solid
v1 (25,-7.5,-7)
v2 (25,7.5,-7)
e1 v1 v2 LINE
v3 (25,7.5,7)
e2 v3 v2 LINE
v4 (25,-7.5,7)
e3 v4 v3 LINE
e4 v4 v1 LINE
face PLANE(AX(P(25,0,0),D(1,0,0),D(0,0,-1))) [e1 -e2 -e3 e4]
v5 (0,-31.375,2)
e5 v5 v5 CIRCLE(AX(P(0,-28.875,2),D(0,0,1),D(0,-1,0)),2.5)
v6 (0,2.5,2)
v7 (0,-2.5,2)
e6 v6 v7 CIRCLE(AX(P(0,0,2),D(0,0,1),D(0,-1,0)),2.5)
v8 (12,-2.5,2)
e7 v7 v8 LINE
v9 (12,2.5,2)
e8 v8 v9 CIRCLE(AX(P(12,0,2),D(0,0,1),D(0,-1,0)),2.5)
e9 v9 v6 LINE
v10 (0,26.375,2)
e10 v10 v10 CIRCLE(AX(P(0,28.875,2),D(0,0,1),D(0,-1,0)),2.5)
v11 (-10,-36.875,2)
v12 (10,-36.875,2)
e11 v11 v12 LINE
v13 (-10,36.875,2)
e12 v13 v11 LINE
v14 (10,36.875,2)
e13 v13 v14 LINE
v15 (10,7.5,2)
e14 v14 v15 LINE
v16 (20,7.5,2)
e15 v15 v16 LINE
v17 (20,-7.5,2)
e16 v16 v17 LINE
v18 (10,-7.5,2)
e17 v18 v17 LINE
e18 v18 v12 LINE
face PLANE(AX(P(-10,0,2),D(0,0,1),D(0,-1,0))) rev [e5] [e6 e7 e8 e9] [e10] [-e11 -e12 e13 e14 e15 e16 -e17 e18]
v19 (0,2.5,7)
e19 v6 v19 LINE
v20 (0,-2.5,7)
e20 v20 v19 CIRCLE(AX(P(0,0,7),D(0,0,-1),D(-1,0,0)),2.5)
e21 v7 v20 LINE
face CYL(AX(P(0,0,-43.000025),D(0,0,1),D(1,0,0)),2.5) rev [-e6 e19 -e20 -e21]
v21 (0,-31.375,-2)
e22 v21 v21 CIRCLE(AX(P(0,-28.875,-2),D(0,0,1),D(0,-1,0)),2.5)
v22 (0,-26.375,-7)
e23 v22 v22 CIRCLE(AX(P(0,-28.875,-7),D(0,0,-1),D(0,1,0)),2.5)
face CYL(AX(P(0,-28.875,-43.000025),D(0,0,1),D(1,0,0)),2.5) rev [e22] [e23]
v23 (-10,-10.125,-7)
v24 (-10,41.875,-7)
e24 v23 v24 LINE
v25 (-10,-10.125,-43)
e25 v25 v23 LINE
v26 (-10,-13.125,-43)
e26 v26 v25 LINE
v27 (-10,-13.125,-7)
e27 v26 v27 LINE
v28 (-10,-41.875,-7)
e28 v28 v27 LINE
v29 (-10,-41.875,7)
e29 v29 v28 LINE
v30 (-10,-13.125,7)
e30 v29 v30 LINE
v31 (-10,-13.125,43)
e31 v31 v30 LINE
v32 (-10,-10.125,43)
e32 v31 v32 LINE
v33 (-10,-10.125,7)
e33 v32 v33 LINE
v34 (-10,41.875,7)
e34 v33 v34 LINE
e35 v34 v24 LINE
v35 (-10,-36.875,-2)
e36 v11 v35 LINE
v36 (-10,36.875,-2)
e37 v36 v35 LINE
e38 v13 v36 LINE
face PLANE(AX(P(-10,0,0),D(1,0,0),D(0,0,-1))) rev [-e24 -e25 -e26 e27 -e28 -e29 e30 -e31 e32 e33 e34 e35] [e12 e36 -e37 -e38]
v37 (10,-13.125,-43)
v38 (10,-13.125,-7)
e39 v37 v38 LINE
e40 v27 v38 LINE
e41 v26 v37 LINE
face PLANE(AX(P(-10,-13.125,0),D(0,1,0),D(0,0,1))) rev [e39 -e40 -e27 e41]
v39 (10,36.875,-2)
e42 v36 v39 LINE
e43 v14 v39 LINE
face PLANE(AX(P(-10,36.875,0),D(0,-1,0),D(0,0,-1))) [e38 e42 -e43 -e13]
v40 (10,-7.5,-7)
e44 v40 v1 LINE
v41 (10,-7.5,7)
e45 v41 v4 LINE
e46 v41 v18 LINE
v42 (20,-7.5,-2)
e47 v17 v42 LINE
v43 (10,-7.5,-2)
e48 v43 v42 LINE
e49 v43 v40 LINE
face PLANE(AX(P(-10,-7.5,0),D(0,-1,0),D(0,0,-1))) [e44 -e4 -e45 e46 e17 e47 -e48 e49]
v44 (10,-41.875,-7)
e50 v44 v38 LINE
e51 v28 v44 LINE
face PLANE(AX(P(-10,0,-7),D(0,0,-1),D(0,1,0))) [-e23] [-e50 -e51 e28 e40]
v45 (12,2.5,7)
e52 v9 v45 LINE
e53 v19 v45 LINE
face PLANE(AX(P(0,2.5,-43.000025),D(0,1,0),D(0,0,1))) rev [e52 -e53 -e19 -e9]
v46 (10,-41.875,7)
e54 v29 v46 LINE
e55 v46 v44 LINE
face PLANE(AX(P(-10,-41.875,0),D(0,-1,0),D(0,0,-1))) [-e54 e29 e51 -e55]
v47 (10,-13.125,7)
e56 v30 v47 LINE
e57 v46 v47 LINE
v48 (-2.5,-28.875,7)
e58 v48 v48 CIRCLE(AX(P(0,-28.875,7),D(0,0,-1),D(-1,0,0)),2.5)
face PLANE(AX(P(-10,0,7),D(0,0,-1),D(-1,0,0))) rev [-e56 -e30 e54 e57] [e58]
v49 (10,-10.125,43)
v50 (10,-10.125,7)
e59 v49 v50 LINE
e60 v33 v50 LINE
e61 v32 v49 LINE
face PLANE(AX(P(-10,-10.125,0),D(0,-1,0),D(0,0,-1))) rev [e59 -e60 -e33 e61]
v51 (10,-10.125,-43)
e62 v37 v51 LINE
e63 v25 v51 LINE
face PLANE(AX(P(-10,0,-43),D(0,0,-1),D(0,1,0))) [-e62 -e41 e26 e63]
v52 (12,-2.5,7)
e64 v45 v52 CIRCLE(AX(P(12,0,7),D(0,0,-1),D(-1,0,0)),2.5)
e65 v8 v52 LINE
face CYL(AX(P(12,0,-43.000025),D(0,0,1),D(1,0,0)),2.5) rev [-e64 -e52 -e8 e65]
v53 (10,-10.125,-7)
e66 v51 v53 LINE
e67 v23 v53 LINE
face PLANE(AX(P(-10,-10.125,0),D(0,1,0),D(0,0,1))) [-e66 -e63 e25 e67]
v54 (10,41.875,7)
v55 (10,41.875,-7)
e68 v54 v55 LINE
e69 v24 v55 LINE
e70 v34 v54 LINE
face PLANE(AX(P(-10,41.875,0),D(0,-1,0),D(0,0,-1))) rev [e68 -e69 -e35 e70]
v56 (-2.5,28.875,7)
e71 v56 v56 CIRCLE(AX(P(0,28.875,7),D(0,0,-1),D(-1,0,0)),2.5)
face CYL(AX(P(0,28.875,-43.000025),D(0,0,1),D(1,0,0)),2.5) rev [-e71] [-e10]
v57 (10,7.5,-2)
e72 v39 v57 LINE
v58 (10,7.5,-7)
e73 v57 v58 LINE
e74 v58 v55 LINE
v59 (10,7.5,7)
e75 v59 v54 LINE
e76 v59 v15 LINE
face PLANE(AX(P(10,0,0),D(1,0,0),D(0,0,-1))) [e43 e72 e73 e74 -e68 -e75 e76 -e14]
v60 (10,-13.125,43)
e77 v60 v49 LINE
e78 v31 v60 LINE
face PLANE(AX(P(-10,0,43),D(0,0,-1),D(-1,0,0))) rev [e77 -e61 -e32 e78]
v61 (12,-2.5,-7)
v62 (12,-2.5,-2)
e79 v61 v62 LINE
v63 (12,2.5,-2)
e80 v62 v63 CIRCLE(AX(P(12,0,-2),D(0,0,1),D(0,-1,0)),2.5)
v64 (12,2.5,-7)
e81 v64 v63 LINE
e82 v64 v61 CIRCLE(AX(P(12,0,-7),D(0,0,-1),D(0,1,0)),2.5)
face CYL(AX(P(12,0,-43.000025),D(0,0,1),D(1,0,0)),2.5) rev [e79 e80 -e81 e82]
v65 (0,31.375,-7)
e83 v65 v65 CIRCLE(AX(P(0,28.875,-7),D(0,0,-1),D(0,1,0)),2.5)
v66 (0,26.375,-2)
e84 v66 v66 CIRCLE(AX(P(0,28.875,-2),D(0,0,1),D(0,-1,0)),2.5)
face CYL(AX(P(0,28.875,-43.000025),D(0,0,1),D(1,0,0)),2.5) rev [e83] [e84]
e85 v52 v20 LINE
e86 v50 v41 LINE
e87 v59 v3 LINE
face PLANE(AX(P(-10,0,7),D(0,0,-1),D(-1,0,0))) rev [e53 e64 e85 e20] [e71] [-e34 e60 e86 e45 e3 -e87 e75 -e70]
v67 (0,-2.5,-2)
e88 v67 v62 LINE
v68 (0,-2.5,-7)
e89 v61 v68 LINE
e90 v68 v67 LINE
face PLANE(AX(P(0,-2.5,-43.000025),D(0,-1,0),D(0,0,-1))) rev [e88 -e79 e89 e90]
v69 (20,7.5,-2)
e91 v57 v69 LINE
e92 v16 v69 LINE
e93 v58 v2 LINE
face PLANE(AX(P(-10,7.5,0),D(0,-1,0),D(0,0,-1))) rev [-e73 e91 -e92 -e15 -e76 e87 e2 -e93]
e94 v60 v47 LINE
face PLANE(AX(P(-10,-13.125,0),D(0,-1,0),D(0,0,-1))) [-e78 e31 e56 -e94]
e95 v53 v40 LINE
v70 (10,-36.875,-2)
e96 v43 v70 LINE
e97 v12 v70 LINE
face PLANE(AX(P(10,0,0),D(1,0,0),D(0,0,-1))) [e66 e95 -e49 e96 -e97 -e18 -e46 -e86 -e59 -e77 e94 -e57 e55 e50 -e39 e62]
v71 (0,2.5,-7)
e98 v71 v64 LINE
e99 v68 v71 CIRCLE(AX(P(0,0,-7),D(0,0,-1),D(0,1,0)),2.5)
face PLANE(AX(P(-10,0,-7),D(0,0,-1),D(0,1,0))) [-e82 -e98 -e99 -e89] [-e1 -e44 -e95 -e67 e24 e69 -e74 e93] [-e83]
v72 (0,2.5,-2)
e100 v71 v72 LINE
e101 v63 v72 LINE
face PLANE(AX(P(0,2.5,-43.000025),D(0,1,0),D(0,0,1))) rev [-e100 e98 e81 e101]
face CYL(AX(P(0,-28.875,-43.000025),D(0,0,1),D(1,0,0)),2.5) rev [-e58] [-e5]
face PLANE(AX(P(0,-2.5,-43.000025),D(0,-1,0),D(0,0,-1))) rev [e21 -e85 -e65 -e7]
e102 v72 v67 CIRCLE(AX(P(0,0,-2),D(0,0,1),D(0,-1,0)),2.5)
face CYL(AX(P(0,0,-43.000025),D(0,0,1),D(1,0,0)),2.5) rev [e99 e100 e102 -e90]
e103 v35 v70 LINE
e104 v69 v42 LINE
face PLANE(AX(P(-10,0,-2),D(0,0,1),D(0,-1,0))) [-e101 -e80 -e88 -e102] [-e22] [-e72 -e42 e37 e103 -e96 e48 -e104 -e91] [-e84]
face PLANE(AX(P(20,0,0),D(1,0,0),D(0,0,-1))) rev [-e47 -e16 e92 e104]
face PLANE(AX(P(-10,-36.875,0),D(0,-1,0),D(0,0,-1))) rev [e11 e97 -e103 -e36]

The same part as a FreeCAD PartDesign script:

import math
import FreeCAD as App
import Part
import Sketcher
Q = App.Units.Quantity


def add_polygon(sketch, points):
    """Adds a closed chain of lines whose ends are joined by coincident constraints."""
    first, n = sketch.GeometryCount, len(points)
    for a, b in zip(points, points[1:] + points[:1]):
        sketch.addGeometry(Part.LineSegment(App.Vector(*a, 0), App.Vector(*b, 0)), False)
    for i in range(n):
        sketch.addConstraint(Sketcher.Constraint("Coincident", first + i, 2, first + (i + 1) % n, 1))

doc = App.newDocument("Part")
params = doc.addObject("Spreadsheet::Sheet", "Params")
for row, (alias, value) in enumerate([
    ("sketch1_height", "5 mm"),
    ("sketch1_height2", "4 mm"),
    ("pad1_length", "10 mm"),
    ("pad1_length2", "10 mm"),
    ("sketch2_width", "15 mm"),
    ("sketch2_height", "5 mm"),
    ("pad2_length", "25 mm"),
    ("pad2_length2", "10 mm"),
    ("sketch3_width", "15 mm"),
    ("sketch3_height", "4 mm"),
    ("pad3_length", "5 mm"),
    ("sketch4_height", "5 mm"),
    ("sketch4_height2", "14 mm"),
    ("pad4_length", "10 mm"),
    ("pad4_length2", "10 mm"),
    ("sketch5_width", "3 mm"),
    ("sketch5_height", "36 mm"),
    ("pad5_length", "10 mm"),
    ("pad5_length2", "10 mm"),
    ("sketch6_diameter", "5 mm"),
    ("sketch6_width", "12 mm"),
], start=1):
    params.set(f"A{row}", alias)
    params.set(f"B{row}", "=" + value)
    params.setAlias(f"B{row}", alias)

body = doc.addObject("PartDesign::Body", "Body")

# Sketch on YZ plane
sketch1 = body.newObject("Sketcher::SketchObject", "Sketch")
sketch1.AttachmentSupport = (doc.getObject("YZ_Plane"), [""])
sketch1.MapMode = "FlatFace"
add_polygon(sketch1, [(41.9, 7), (7.5, 7), (7.5, 2), (36.9, 2), (36.9, -2), (7.5, -2), (7.5, -7), (41.9, -7)])  # lines 0-7
sketch1.addConstraint(Sketcher.Constraint("Horizontal", 0))
sketch1.addConstraint(Sketcher.Constraint("Vertical", 1))
sketch1.addConstraint(Sketcher.Constraint("Horizontal", 2))
sketch1.addConstraint(Sketcher.Constraint("Vertical", 3))
sketch1.addConstraint(Sketcher.Constraint("Horizontal", 4))
sketch1.addConstraint(Sketcher.Constraint("Vertical", 5))
sketch1.addConstraint(Sketcher.Constraint("Horizontal", 6))
sketch1.addConstraint(Sketcher.Constraint("Vertical", 7))
sketch1.addConstraint(Sketcher.Constraint("Symmetric", 1, 2, 4, 2, -1))
sketch1.addConstraint(Sketcher.Constraint("Equal", 1, 5))
sketch1.addConstraint(Sketcher.Constraint("DistanceY", 1, 2, 1, 1, Q("5 mm")))
sketch1.addConstraint(Sketcher.Constraint("DistanceY", 3, 2, 3, 1, Q("4 mm")))
sketch1.addConstraint(Sketcher.Constraint("DistanceX", 3, 2, 6, 2, Q("5 mm")))
sketch1.addConstraint(Sketcher.Constraint("DistanceX", -1, 1, 0, 2, Q("7.5 mm")))
sketch1.addConstraint(Sketcher.Constraint("DistanceX", 0, 2, 0, 1, Q("34.375 mm")))
sketch1.setExpression("Constraints[18]", "Params.sketch1_height")
sketch1.setExpression("Constraints[19]", "Params.sketch1_height2")
pad1 = body.newObject("PartDesign::Pad", "Pad")
pad1.Profile = sketch1
pad1.Type = "TwoLengths"
pad1.setExpression("Length", "Params.pad1_length")
pad1.setExpression("Length2", "Params.pad1_length2")

# Sketch on YZ plane
sketch2 = body.newObject("Sketcher::SketchObject", "Sketch001")
sketch2.AttachmentSupport = (doc.getObject("YZ_Plane"), [""])
sketch2.MapMode = "FlatFace"
add_polygon(sketch2, [(8, 7), (-8, 7), (-8, 2), (8, 2)])  # lines 0-3
add_polygon(sketch2, [(8, -2), (-8, -2), (-8, -7), (8, -7)])  # lines 4-7
sketch2.addConstraint(Sketcher.Constraint("Horizontal", 0))
sketch2.addConstraint(Sketcher.Constraint("Vertical", 1))
sketch2.addConstraint(Sketcher.Constraint("Horizontal", 2))
sketch2.addConstraint(Sketcher.Constraint("Vertical", 3))
sketch2.addConstraint(Sketcher.Constraint("Horizontal", 4))
sketch2.addConstraint(Sketcher.Constraint("Vertical", 5))
sketch2.addConstraint(Sketcher.Constraint("Horizontal", 6))
sketch2.addConstraint(Sketcher.Constraint("Vertical", 7))
sketch2.addConstraint(Sketcher.Constraint("Symmetric", 2, 2, 4, 2, -1, 1))
sketch2.addConstraint(Sketcher.Constraint("Symmetric", 0, 2, 6, 2, -1, 1))
sketch2.addConstraint(Sketcher.Constraint("Vertical", 1, 2, 4, 2))
sketch2.addConstraint(Sketcher.Constraint("DistanceX", 0, 2, 0, 1, Q("15 mm")))
sketch2.addConstraint(Sketcher.Constraint("DistanceY", 1, 2, 1, 1, Q("5 mm")))
sketch2.addConstraint(Sketcher.Constraint("DistanceY", -1, 1, 0, 2, Q("7 mm")))
sketch2.setExpression("Constraints[19]", "Params.sketch2_width")
sketch2.setExpression("Constraints[20]", "Params.sketch2_height")
pad2 = body.newObject("PartDesign::Pad", "Pad001")
pad2.Profile = sketch2
pad2.Type = "TwoLengths"
pad2.setExpression("Length", "Params.pad2_length")
pad2.setExpression("Length2", "Params.pad2_length2")

# Sketch on YZ plane
sketch3 = body.newObject("Sketcher::SketchObject", "Sketch002")
sketch3.AttachmentSupport = (doc.getObject("YZ_Plane"), [""])
sketch3.MapMode = "FlatFace"
sketch3.AttachmentOffset = App.Placement(App.Vector(0, 0, 20), App.Rotation())
add_polygon(sketch3, [(7.5, 2), (-7.5, 2), (-7.5, -2), (7.5, -2)])  # lines 0-3
sketch3.addConstraint(Sketcher.Constraint("Horizontal", 0))
sketch3.addConstraint(Sketcher.Constraint("Vertical", 1))
sketch3.addConstraint(Sketcher.Constraint("Horizontal", 2))
sketch3.addConstraint(Sketcher.Constraint("Vertical", 3))
sketch3.addConstraint(Sketcher.Constraint("Symmetric", 0, 2, 2, 2, -1, 1))
sketch3.addConstraint(Sketcher.Constraint("DistanceX", 0, 2, 0, 1, Q("15 mm")))
sketch3.addConstraint(Sketcher.Constraint("DistanceY", 1, 2, 1, 1, Q("4 mm")))
sketch3.setExpression("Constraints[9]", "Params.sketch3_width")
sketch3.setExpression("Constraints[10]", "Params.sketch3_height")
pad3 = body.newObject("PartDesign::Pad", "Pad002")
pad3.Profile = sketch3
pad3.setExpression("Length", "Params.pad3_length")

# Sketch on YZ plane
sketch4 = body.newObject("Sketcher::SketchObject", "Sketch003")
sketch4.AttachmentSupport = (doc.getObject("YZ_Plane"), [""])
sketch4.MapMode = "FlatFace"
add_polygon(sketch4, [(-7.5, 2), (-7.5, 7), (-41.9, 7), (-41.9, -7), (-7.5, -7), (-7.5, -2), (-36.9, -2), (-36.9, 2)])  # lines 0-7
sketch4.addConstraint(Sketcher.Constraint("Vertical", 0))
sketch4.addConstraint(Sketcher.Constraint("Horizontal", 1))
sketch4.addConstraint(Sketcher.Constraint("Vertical", 2))
sketch4.addConstraint(Sketcher.Constraint("Horizontal", 3))
sketch4.addConstraint(Sketcher.Constraint("Vertical", 4))
sketch4.addConstraint(Sketcher.Constraint("Horizontal", 5))
sketch4.addConstraint(Sketcher.Constraint("Vertical", 6))
sketch4.addConstraint(Sketcher.Constraint("Horizontal", 7))
sketch4.addConstraint(Sketcher.Constraint("Symmetric", 0, 2, 3, 2, -1))
sketch4.addConstraint(Sketcher.Constraint("Equal", 0, 4))
sketch4.addConstraint(Sketcher.Constraint("DistanceY", 0, 1, 0, 2, Q("5 mm")))
sketch4.addConstraint(Sketcher.Constraint("DistanceY", 2, 2, 2, 1, Q("14 mm")))
sketch4.addConstraint(Sketcher.Constraint("DistanceX", 2, 2, 5, 2, Q("5 mm")))
sketch4.addConstraint(Sketcher.Constraint("DistanceX", 0, 2, -1, 1, Q("7.5 mm")))
sketch4.addConstraint(Sketcher.Constraint("DistanceX", 1, 2, 1, 1, Q("34.375 mm")))
sketch4.setExpression("Constraints[18]", "Params.sketch4_height")
sketch4.setExpression("Constraints[19]", "Params.sketch4_height2")
pad4 = body.newObject("PartDesign::Pad", "Pad003")
pad4.Profile = sketch4
pad4.Type = "TwoLengths"
pad4.setExpression("Length", "Params.pad4_length")
pad4.setExpression("Length2", "Params.pad4_length2")

# Sketch on YZ plane
sketch5 = body.newObject("Sketcher::SketchObject", "Sketch004")
sketch5.AttachmentSupport = (doc.getObject("YZ_Plane"), [""])
sketch5.MapMode = "FlatFace"
add_polygon(sketch5, [(-10.1, -7), (-13.1, -7), (-13.1, -43), (-10.1, -43)])  # lines 0-3
add_polygon(sketch5, [(-10.1, 43), (-13.1, 43), (-13.1, 7), (-10.1, 7)])  # lines 4-7
sketch5.addConstraint(Sketcher.Constraint("Horizontal", 0))
sketch5.addConstraint(Sketcher.Constraint("Vertical", 1))
sketch5.addConstraint(Sketcher.Constraint("Horizontal", 2))
sketch5.addConstraint(Sketcher.Constraint("Vertical", 3))
sketch5.addConstraint(Sketcher.Constraint("Horizontal", 4))
sketch5.addConstraint(Sketcher.Constraint("Vertical", 5))
sketch5.addConstraint(Sketcher.Constraint("Horizontal", 6))
sketch5.addConstraint(Sketcher.Constraint("Vertical", 7))
sketch5.addConstraint(Sketcher.Constraint("Symmetric", 1, 2, 4, 2, -1))
sketch5.addConstraint(Sketcher.Constraint("Symmetric", 3, 2, 6, 2, -1))
sketch5.addConstraint(Sketcher.Constraint("DistanceX", 0, 2, 0, 1, Q("3 mm")))
sketch5.addConstraint(Sketcher.Constraint("DistanceY", 1, 2, 1, 1, Q("36 mm")))
sketch5.addConstraint(Sketcher.Constraint("DistanceY", 0, 2, -1, 1, Q("7 mm")))
sketch5.addConstraint(Sketcher.Constraint("DistanceX", 0, 2, -1, 1, Q("13.125 mm")))
sketch5.setExpression("Constraints[18]", "Params.sketch5_width")
sketch5.setExpression("Constraints[19]", "Params.sketch5_height")
pad5 = body.newObject("PartDesign::Pad", "Pad004")
pad5.Profile = sketch5
pad5.Type = "TwoLengths"
pad5.setExpression("Length", "Params.pad5_length")
pad5.setExpression("Length2", "Params.pad5_length2")

# Sketch on XY plane
sketch6 = body.newObject("Sketcher::SketchObject", "Sketch005")
sketch6.AttachmentSupport = (doc.getObject("XY_Plane"), [""])
sketch6.MapMode = "FlatFace"
sketch6.AttachmentOffset = App.Placement(App.Vector(0, 0, 7), App.Rotation())
sketch6.addGeometry(Part.Circle(App.Vector(0, 28.9, 0), App.Vector(0, 0, 1), 2.5), False)
sketch6.addGeometry(Part.Circle(App.Vector(0, -28.9, 0), App.Vector(0, 0, 1), 2.5), False)
sketch6.addGeometry(Part.LineSegment(App.Vector(12, 2.5, 0), App.Vector(0, 2.5, 0)), False)
sketch6.addGeometry(Part.ArcOfCircle(Part.Circle(App.Vector(0, 0, 0), App.Vector(0, 0, 1), 2.5), math.radians(90), math.radians(270)), False)
sketch6.addGeometry(Part.LineSegment(App.Vector(0, -2.5, 0), App.Vector(12, -2.5, 0)), False)
sketch6.addGeometry(Part.ArcOfCircle(Part.Circle(App.Vector(12, 0, 0), App.Vector(0, 0, 1), 2.5), math.radians(-90), math.radians(90)), False)
sketch6.addConstraint(Sketcher.Constraint("Tangent", 2, 2, 3, 1))
sketch6.addConstraint(Sketcher.Constraint("Tangent", 3, 2, 4, 1))
sketch6.addConstraint(Sketcher.Constraint("Tangent", 4, 2, 5, 1))
sketch6.addConstraint(Sketcher.Constraint("Tangent", 5, 2, 2, 1))
sketch6.addConstraint(Sketcher.Constraint("Horizontal", 2))
sketch6.addConstraint(Sketcher.Constraint("Horizontal", 4))
sketch6.addConstraint(Sketcher.Constraint("Coincident", 3, 3, -1, 1))
sketch6.addConstraint(Sketcher.Constraint("Equal", 0, 1))
sketch6.addConstraint(Sketcher.Constraint("Equal", 1, 3))
sketch6.addConstraint(Sketcher.Constraint("Symmetric", 0, 3, 1, 3, -1, 1))
sketch6.addConstraint(Sketcher.Constraint("PointOnObject", 0, 3, -2))
sketch6.addConstraint(Sketcher.Constraint("Diameter", 0, Q("5 mm")))
sketch6.addConstraint(Sketcher.Constraint("DistanceX", 2, 2, 2, 1, Q("12 mm")))
sketch6.addConstraint(Sketcher.Constraint("DistanceY", 1, 3, 0, 3, Q("57.75 mm")))
sketch6.setExpression("Constraints[11]", "Params.sketch6_diameter")
sketch6.setExpression("Constraints[12]", "Params.sketch6_width")
pocket1 = body.newObject("PartDesign::Pocket", "Pocket")
pocket1.Profile = sketch6
pocket1.Type = "ThroughAll"
pocket1.Midplane = True

doc.recompute()
